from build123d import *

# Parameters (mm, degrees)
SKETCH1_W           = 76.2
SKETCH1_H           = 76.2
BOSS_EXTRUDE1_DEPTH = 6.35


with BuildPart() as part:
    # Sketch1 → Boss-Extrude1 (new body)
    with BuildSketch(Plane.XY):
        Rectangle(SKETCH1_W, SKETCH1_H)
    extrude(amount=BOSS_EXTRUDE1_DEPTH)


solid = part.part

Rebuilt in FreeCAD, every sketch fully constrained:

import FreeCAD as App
import Part
import Sketcher

V = App.Vector
Q = App.Units.Quantity


def add_polygon(sketch, points):
    """Adds a closed chain of lines whose ends are joined by coincident constraints."""
    first, n = sketch.GeometryCount, len(points)
    for a, b in zip(points, points[1:] + points[:1]):
        sketch.addGeometry(Part.LineSegment(App.Vector(*a, 0), App.Vector(*b, 0)), False)
    for i in range(n):
        sketch.addConstraint(Sketcher.Constraint("Coincident", first + i, 2, first + (i + 1) % n, 1))

doc = App.newDocument("Part")
body = doc.addObject("PartDesign::Body", "Body")

# Sketch on XY plane
sketch1 = body.newObject("Sketcher::SketchObject", "Sketch")
sketch1.AttachmentSupport = (doc.getObject("XY_Plane"), [""])
sketch1.MapMode = "FlatFace"
add_polygon(sketch1, [(-38, 38), (-38, -38), (38, -38), (38, 38)])  # lines 0-3
sketch1.addConstraint(Sketcher.Constraint("Vertical", 0))
sketch1.addConstraint(Sketcher.Constraint("Horizontal", 1))
sketch1.addConstraint(Sketcher.Constraint("Vertical", 2))
sketch1.addConstraint(Sketcher.Constraint("Horizontal", 3))
sketch1.addConstraint(Sketcher.Constraint("Symmetric", 0, 2, 2, 2, -1, 1))
sketch1.addConstraint(Sketcher.Constraint("Equal", 3, 0))
sketch1.addConstraint(Sketcher.Constraint("DistanceX", 1, 1, 1, 2, Q("3 in")))
pad1 = body.newObject("PartDesign::Pad", "Pad")
pad1.Profile = sketch1
pad1.Length = Q("0.25 in")

doc.recompute()
